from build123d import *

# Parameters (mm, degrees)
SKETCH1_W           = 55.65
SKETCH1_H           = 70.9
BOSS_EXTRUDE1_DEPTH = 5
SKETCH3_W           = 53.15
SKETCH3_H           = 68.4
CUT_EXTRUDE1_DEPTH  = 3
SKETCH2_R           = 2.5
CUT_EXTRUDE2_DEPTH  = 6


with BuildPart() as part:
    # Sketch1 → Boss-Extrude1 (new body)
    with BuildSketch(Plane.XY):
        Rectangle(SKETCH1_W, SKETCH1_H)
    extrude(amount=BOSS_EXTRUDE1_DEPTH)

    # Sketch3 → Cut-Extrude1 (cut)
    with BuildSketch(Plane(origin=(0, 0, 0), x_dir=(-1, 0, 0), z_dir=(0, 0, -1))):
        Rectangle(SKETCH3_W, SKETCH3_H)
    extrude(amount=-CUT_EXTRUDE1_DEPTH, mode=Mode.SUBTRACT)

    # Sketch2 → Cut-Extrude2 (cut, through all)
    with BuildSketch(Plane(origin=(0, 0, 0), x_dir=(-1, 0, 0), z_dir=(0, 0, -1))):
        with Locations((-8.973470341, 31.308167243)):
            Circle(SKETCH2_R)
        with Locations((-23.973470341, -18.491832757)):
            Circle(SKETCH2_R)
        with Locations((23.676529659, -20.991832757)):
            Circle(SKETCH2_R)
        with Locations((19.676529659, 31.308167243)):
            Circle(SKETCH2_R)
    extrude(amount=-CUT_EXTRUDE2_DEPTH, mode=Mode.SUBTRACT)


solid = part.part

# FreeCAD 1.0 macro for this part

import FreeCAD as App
import Part
import Sketcher

V = App.Vector
Q = App.Units.Quantity


def add_polygon(sketch, points):
    """Adds a closed chain of lines whose ends are joined by coincident constraints."""
    first, n = sketch.GeometryCount, len(points)
    for a, b in zip(points, points[1:] + points[:1]):
        sketch.addGeometry(Part.LineSegment(App.Vector(*a, 0), App.Vector(*b, 0)), False)
    for i in range(n):
        sketch.addConstraint(Sketcher.Constraint("Coincident", first + i, 2, first + (i + 1) % n, 1))

doc = App.newDocument("Part")
params = doc.addObject("Spreadsheet::Sheet", "Params")
for row, (alias, value) in enumerate([
    ("sketch1_height", "70.9 mm"),
    ("sketch1_width", "55.65 mm"),
    ("pad1_length", "5 mm"),
    ("sketch2_height", "68.4 mm"),
    ("sketch2_width", "53.15 mm"),
    ("pocket1_length", "3 mm"),
    ("sketch3_diameter", "5 mm"),
], start=1):
    params.set(f"A{row}", alias)
    params.set(f"B{row}", "=" + value)
    params.setAlias(f"B{row}", alias)

body = doc.addObject("PartDesign::Body", "Body")

sketch1 = body.newObject("Sketcher::SketchObject", "Sketch")
sketch1.AttachmentSupport = (doc.getObject("XY_Plane"), [""])
sketch1.MapMode = "FlatFace"
add_polygon(sketch1, [(-28, 35), (-28, -35), (28, -35), (28, 35)])
sketch1.addConstraint([
    Sketcher.Constraint("Vertical", 0),
    Sketcher.Constraint("Horizontal", 1),
    Sketcher.Constraint("Vertical", 2),
    Sketcher.Constraint("Horizontal", 3),
    Sketcher.Constraint("Symmetric", 0, 2, 2, 2, -1, 1),
    Sketcher.Constraint("DistanceY", 0, 2, 0, 1, Q("70.9 mm")),
    Sketcher.Constraint("DistanceX", 1, 1, 1, 2, Q("55.65 mm")),
])
sketch1.setExpression("Constraints[9]", "Params.sketch1_height")
sketch1.setExpression("Constraints[10]", "Params.sketch1_width")
pad1 = body.newObject("PartDesign::Pad", "Pad")
pad1.Profile = sketch1
pad1.setExpression("Length", "Params.pad1_length")

sketch2 = body.newObject("Sketcher::SketchObject", "Sketch001")
sketch2.AttachmentSupport = (doc.getObject("XY_Plane"), [""])
sketch2.MapMode = "FlatFace"
add_polygon(sketch2, [(27, 34), (27, -34), (-27, -34), (-27, 34)])
sketch2.addConstraint([
    Sketcher.Constraint("Vertical", 0),
    Sketcher.Constraint("Horizontal", 1),
    Sketcher.Constraint("Vertical", 2),
    Sketcher.Constraint("Horizontal", 3),
    Sketcher.Constraint("Symmetric", 0, 2, 2, 2, -1, 1),
    Sketcher.Constraint("DistanceY", 0, 2, 0, 1, Q("68.4 mm")),
    Sketcher.Constraint("DistanceX", 1, 2, 1, 1, Q("53.15 mm")),
])
sketch2.setExpression("Constraints[9]", "Params.sketch2_height")
sketch2.setExpression("Constraints[10]", "Params.sketch2_width")
pocket1 = body.newObject("PartDesign::Pocket", "Pocket")
pocket1.Profile = sketch2
pocket1.setExpression("Length", "Params.pocket1_length")
pocket1.Reversed = True

sketch3 = body.newObject("Sketcher::SketchObject", "Sketch002")
sketch3.AttachmentSupport = (doc.getObject("XY_Plane"), [""])
sketch3.MapMode = "FlatFace"
sketch3.addGeometry([
    Part.Circle(V(9, 31.3, 0), V(0, 0, 1), 2.5),
    Part.Circle(V(24, -18.5, 0), V(0, 0, 1), 2.5),
    Part.Circle(V(-23.7, -21, 0), V(0, 0, 1), 2.5),
    Part.Circle(V(-19.7, 31.3, 0), V(0, 0, 1), 2.5),
], False)
sketch3.addConstraint([
    Sketcher.Constraint("Equal", 0, 1),
    Sketcher.Constraint("Equal", 1, 2),
    Sketcher.Constraint("Equal", 2, 3),
    Sketcher.Constraint("Horizontal", 0, 3, 3, 3),
    Sketcher.Constraint("Diameter", 0, Q("5 mm")),
    Sketcher.Constraint("DistanceX", 0, 3, 1, 3, Q("15 mm")),
    Sketcher.Constraint("DistanceX", 2, 3, 3, 3, Q("4 mm")),
    Sketcher.Constraint("DistanceY", 1, 3, 0, 3, Q("49.8 mm")),
    Sketcher.Constraint("DistanceY", 2, 3, 1, 3, Q("2.5 mm")),
    Sketcher.Constraint("DistanceX", 2, 3, 1, 3, Q("47.65 mm")),
    Sketcher.Constraint("DistanceX", -1, 1, 0, 3, Q("8.97347 mm")),
    Sketcher.Constraint("DistanceY", -1, 1, 0, 3, Q("31.308167 mm")),
])
sketch3.setExpression("Constraints[4]", "Params.sketch3_diameter")
pocket2 = body.newObject("PartDesign::Pocket", "Pocket001")
pocket2.Profile = sketch3
pocket2.Type = "ThroughAll"
pocket2.Reversed = True

doc.recompute()
